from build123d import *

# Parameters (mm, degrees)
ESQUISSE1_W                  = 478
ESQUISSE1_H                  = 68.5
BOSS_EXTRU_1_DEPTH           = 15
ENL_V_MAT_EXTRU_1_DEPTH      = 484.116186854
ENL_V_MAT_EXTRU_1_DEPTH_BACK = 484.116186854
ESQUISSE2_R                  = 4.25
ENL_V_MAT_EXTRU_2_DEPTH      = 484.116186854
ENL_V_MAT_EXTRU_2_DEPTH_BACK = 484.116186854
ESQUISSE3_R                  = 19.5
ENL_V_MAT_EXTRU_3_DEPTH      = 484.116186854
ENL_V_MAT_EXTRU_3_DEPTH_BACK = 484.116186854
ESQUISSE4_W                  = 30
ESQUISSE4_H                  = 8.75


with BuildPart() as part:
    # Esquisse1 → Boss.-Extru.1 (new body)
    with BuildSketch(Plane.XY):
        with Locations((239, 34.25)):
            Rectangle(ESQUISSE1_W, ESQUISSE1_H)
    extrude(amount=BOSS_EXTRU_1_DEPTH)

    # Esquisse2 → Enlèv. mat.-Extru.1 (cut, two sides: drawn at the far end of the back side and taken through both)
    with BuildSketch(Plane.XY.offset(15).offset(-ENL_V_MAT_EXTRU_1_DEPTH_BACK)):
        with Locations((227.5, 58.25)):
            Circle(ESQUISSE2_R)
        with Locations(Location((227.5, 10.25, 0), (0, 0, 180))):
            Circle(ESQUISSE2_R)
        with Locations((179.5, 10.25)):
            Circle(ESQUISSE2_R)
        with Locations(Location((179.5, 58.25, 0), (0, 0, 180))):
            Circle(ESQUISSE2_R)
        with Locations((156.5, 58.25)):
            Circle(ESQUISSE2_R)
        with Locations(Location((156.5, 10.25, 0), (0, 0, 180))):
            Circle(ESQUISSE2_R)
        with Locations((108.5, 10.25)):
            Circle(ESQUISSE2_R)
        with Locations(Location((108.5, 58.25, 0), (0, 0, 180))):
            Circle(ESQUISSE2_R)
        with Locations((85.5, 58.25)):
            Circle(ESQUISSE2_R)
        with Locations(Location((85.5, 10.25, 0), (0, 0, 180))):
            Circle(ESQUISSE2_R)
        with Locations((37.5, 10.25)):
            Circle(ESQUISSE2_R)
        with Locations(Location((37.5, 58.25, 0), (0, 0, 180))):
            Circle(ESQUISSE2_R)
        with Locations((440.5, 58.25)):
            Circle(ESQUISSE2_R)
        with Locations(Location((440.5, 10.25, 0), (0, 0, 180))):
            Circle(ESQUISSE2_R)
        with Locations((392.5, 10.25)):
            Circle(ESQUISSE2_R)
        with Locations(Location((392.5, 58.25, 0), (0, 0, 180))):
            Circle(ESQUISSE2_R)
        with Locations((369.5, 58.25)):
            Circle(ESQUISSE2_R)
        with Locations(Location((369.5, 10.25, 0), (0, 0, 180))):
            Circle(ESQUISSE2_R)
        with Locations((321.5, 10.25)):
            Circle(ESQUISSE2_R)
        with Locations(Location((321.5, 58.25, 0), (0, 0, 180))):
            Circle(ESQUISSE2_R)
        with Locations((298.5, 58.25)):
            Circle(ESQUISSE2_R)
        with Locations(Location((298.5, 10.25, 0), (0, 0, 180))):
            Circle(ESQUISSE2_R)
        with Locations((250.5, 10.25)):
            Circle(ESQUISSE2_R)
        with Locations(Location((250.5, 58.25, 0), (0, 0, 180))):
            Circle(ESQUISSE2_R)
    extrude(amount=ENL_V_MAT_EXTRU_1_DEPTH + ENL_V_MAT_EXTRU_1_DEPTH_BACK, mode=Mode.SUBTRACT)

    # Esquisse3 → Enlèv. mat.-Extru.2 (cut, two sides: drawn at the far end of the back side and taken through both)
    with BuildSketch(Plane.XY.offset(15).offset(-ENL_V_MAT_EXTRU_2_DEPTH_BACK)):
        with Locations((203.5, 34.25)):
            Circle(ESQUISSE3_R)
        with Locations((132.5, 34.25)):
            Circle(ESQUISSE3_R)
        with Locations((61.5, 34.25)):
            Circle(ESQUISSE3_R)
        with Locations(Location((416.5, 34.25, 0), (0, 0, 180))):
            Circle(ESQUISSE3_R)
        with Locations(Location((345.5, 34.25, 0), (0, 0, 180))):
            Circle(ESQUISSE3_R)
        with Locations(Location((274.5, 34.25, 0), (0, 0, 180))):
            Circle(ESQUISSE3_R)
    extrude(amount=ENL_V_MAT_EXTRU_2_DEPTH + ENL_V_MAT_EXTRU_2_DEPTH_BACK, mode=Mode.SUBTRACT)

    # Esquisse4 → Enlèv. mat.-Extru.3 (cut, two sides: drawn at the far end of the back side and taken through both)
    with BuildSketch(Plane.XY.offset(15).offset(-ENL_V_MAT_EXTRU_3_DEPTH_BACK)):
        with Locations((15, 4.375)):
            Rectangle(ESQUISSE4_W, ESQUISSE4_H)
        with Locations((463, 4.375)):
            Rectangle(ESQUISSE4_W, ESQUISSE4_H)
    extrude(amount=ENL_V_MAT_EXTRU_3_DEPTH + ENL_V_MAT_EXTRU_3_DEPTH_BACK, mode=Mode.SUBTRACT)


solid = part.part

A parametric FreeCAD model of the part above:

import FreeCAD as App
import Part
import Sketcher

V = App.Vector
Q = App.Units.Quantity


def add_polygon(sketch, points):
    """Adds a closed chain of lines whose ends are joined by coincident constraints."""
    first, n = sketch.GeometryCount, len(points)
    for a, b in zip(points, points[1:] + points[:1]):
        sketch.addGeometry(Part.LineSegment(App.Vector(*a, 0), App.Vector(*b, 0)), False)
    for i in range(n):
        sketch.addConstraint(Sketcher.Constraint("Coincident", first + i, 2, first + (i + 1) % n, 1))

doc = App.newDocument("Part")
params = doc.addObject("Spreadsheet::Sheet", "Params")
for row, (alias, value) in enumerate([
    ("sketch1_width", "478 mm"),
    ("sketch1_height", "68.5 mm"),
    ("pad1_length", "15 mm"),
    ("sketch2_diameter", "8.5 mm"),
    ("sketch3_diameter", "39 mm"),
    ("sketch4_width", "30 mm"),
    ("sketch4_height", "8.75 mm"),
], start=1):
    params.set(f"A{row}", alias)
    params.set(f"B{row}", "=" + value)
    params.setAlias(f"B{row}", alias)

body = doc.addObject("PartDesign::Body", "Body")

# Sketch on XY plane
sketch1 = body.newObject("Sketcher::SketchObject", "Sketch")
sketch1.AttachmentSupport = (doc.getObject("XY_Plane"), [""])
sketch1.MapMode = "FlatFace"
add_polygon(sketch1, [(0, 68), (0, 0), (478, 0), (478, 68)])  # lines 0-3
sketch1.addConstraint(Sketcher.Constraint("Vertical", 0))
sketch1.addConstraint(Sketcher.Constraint("Horizontal", 1))
sketch1.addConstraint(Sketcher.Constraint("Vertical", 2))
sketch1.addConstraint(Sketcher.Constraint("Horizontal", 3))
sketch1.addConstraint(Sketcher.Constraint("Coincident", 0, 2, -1, 1))
sketch1.addConstraint(Sketcher.Constraint("DistanceX", 1, 1, 1, 2, Q("478 mm")))
sketch1.addConstraint(Sketcher.Constraint("DistanceY", 0, 2, 0, 1, Q("68.5 mm")))
sketch1.setExpression("Constraints[9]", "Params.sketch1_width")
sketch1.setExpression("Constraints[10]", "Params.sketch1_height")
pad1 = body.newObject("PartDesign::Pad", "Pad")
pad1.Profile = sketch1
pad1.setExpression("Length", "Params.pad1_length")

# Sketch on XY plane
sketch2 = body.newObject("Sketcher::SketchObject", "Sketch001")
sketch2.AttachmentSupport = (doc.getObject("XY_Plane"), [""])
sketch2.MapMode = "FlatFace"
sketch2.AttachmentOffset = App.Placement(V(0, 0, 15), App.Rotation())
sketch2.addGeometry(Part.Circle(V(227.5, 58.2, 0), V(0, 0, 1), 4.2), False)
sketch2.addGeometry(Part.Circle(V(227.5, 10.2, 0), V(0, 0, 1), 4.2), False)
sketch2.addGeometry(Part.Circle(V(179.5, 10.2, 0), V(0, 0, 1), 4.2), False)
sketch2.addGeometry(Part.Circle(V(179.5, 58.2, 0), V(0, 0, 1), 4.2), False)
sketch2.addGeometry(Part.Circle(V(156.5, 58.2, 0), V(0, 0, 1), 4.2), False)
sketch2.addGeometry(Part.Circle(V(156.5, 10.2, 0), V(0, 0, 1), 4.2), False)
sketch2.addGeometry(Part.Circle(V(108.5, 10.2, 0), V(0, 0, 1), 4.2), False)
sketch2.addGeometry(Part.Circle(V(108.5, 58.2, 0), V(0, 0, 1), 4.2), False)
sketch2.addGeometry(Part.Circle(V(85.5, 58.2, 0), V(0, 0, 1), 4.2), False)
sketch2.addGeometry(Part.Circle(V(85.5, 10.2, 0), V(0, 0, 1), 4.2), False)
sketch2.addGeometry(Part.Circle(V(37.5, 10.2, 0), V(0, 0, 1), 4.2), False)
sketch2.addGeometry(Part.Circle(V(37.5, 58.2, 0), V(0, 0, 1), 4.2), False)
sketch2.addGeometry(Part.Circle(V(440.5, 58.2, 0), V(0, 0, 1), 4.2), False)
sketch2.addGeometry(Part.Circle(V(440.5, 10.2, 0), V(0, 0, 1), 4.2), False)
sketch2.addGeometry(Part.Circle(V(392.5, 10.2, 0), V(0, 0, 1), 4.2), False)
sketch2.addGeometry(Part.Circle(V(392.5, 58.2, 0), V(0, 0, 1), 4.2), False)
sketch2.addGeometry(Part.Circle(V(369.5, 58.2, 0), V(0, 0, 1), 4.2), False)
sketch2.addGeometry(Part.Circle(V(369.5, 10.2, 0), V(0, 0, 1), 4.2), False)
sketch2.addGeometry(Part.Circle(V(321.5, 10.2, 0), V(0, 0, 1), 4.2), False)
sketch2.addGeometry(Part.Circle(V(321.5, 58.2, 0), V(0, 0, 1), 4.2), False)
sketch2.addGeometry(Part.Circle(V(298.5, 58.2, 0), V(0, 0, 1), 4.2), False)
sketch2.addGeometry(Part.Circle(V(298.5, 10.2, 0), V(0, 0, 1), 4.2), False)
sketch2.addGeometry(Part.Circle(V(250.5, 10.2, 0), V(0, 0, 1), 4.2), False)
sketch2.addGeometry(Part.Circle(V(250.5, 58.2, 0), V(0, 0, 1), 4.2), False)
sketch2.addConstraint(Sketcher.Constraint("Equal", 0, 1))
sketch2.addConstraint(Sketcher.Constraint("Equal", 1, 2))
sketch2.addConstraint(Sketcher.Constraint("Equal", 2, 3))
sketch2.addConstraint(Sketcher.Constraint("Equal", 3, 4))
sketch2.addConstraint(Sketcher.Constraint("Equal", 4, 5))
sketch2.addConstraint(Sketcher.Constraint("Equal", 5, 6))
sketch2.addConstraint(Sketcher.Constraint("Equal", 6, 7))
sketch2.addConstraint(Sketcher.Constraint("Equal", 7, 8))
sketch2.addConstraint(Sketcher.Constraint("Equal", 8, 9))
sketch2.addConstraint(Sketcher.Constraint("Equal", 9, 10))
sketch2.addConstraint(Sketcher.Constraint("Equal", 10, 11))
sketch2.addConstraint(Sketcher.Constraint("Equal", 11, 12))
sketch2.addConstraint(Sketcher.Constraint("Equal", 12, 13))
sketch2.addConstraint(Sketcher.Constraint("Equal", 13, 14))
sketch2.addConstraint(Sketcher.Constraint("Equal", 14, 15))
sketch2.addConstraint(Sketcher.Constraint("Equal", 15, 16))
sketch2.addConstraint(Sketcher.Constraint("Equal", 16, 17))
sketch2.addConstraint(Sketcher.Constraint("Equal", 17, 18))
sketch2.addConstraint(Sketcher.Constraint("Equal", 18, 19))
sketch2.addConstraint(Sketcher.Constraint("Equal", 19, 20))
sketch2.addConstraint(Sketcher.Constraint("Equal", 20, 21))
sketch2.addConstraint(Sketcher.Constraint("Equal", 21, 22))
sketch2.addConstraint(Sketcher.Constraint("Equal", 22, 23))
sketch2.addConstraint(Sketcher.Constraint("Horizontal", 1, 3, 2, 3))
sketch2.addConstraint(Sketcher.Constraint("Horizontal", 0, 3, 3, 3))
sketch2.addConstraint(Sketcher.Constraint("Horizontal", 3, 3, 4, 3))
sketch2.addConstraint(Sketcher.Constraint("Horizontal", 2, 3, 5, 3))
sketch2.addConstraint(Sketcher.Constraint("Horizontal", 5, 3, 6, 3))
sketch2.addConstraint(Sketcher.Constraint("Horizontal", 4, 3, 7, 3))
sketch2.addConstraint(Sketcher.Constraint("Horizontal", 7, 3, 8, 3))
sketch2.addConstraint(Sketcher.Constraint("Horizontal", 6, 3, 9, 3))
sketch2.addConstraint(Sketcher.Constraint("Horizontal", 9, 3, 10, 3))
sketch2.addConstraint(Sketcher.Constraint("Horizontal", 8, 3, 11, 3))
sketch2.addConstraint(Sketcher.Constraint("Horizontal", 11, 3, 12, 3))
sketch2.addConstraint(Sketcher.Constraint("Horizontal", 10, 3, 13, 3))
sketch2.addConstraint(Sketcher.Constraint("Horizontal", 13, 3, 14, 3))
sketch2.addConstraint(Sketcher.Constraint("Horizontal", 12, 3, 15, 3))
sketch2.addConstraint(Sketcher.Constraint("Horizontal", 15, 3, 16, 3))
sketch2.addConstraint(Sketcher.Constraint("Horizontal", 14, 3, 17, 3))
sketch2.addConstraint(Sketcher.Constraint("Horizontal", 17, 3, 18, 3))
sketch2.addConstraint(Sketcher.Constraint("Horizontal", 16, 3, 19, 3))
sketch2.addConstraint(Sketcher.Constraint("Horizontal", 19, 3, 20, 3))
sketch2.addConstraint(Sketcher.Constraint("Horizontal", 18, 3, 21, 3))
sketch2.addConstraint(Sketcher.Constraint("Horizontal", 21, 3, 22, 3))
sketch2.addConstraint(Sketcher.Constraint("Horizontal", 20, 3, 23, 3))
sketch2.addConstraint(Sketcher.Constraint("Vertical", 0, 3, 1, 3))
sketch2.addConstraint(Sketcher.Constraint("Vertical", 2, 3, 3, 3))
sketch2.addConstraint(Sketcher.Constraint("Vertical", 4, 3, 5, 3))
sketch2.addConstraint(Sketcher.Constraint("Vertical", 6, 3, 7, 3))
sketch2.addConstraint(Sketcher.Constraint("Vertical", 8, 3, 9, 3))
sketch2.addConstraint(Sketcher.Constraint("Vertical", 10, 3, 11, 3))
sketch2.addConstraint(Sketcher.Constraint("Vertical", 12, 3, 13, 3))
sketch2.addConstraint(Sketcher.Constraint("Vertical", 14, 3, 15, 3))
sketch2.addConstraint(Sketcher.Constraint("Vertical", 16, 3, 17, 3))
sketch2.addConstraint(Sketcher.Constraint("Vertical", 18, 3, 19, 3))
sketch2.addConstraint(Sketcher.Constraint("Vertical", 20, 3, 21, 3))
sketch2.addConstraint(Sketcher.Constraint("Vertical", 22, 3, 23, 3))
sketch2.addConstraint(Sketcher.Constraint("Diameter", 0, Q("8.5 mm")))
sketch2.addConstraint(Sketcher.Constraint("DistanceY", 1, 3, 0, 3, Q("48 mm")))
sketch2.addConstraint(Sketcher.Constraint("DistanceX", 2, 3, 1, 3, Q("48 mm")))
sketch2.addConstraint(Sketcher.Constraint("DistanceX", 4, 3, 3, 3, Q("23 mm")))
sketch2.addConstraint(Sketcher.Constraint("DistanceX", 6, 3, 5, 3, Q("48 mm")))
sketch2.addConstraint(Sketcher.Constraint("DistanceX", 8, 3, 7, 3, Q("23 mm")))
sketch2.addConstraint(Sketcher.Constraint("DistanceX", 10, 3, 9, 3, Q("48 mm")))
sketch2.addConstraint(Sketcher.Constraint("DistanceX", 0, 3, 12, 3, Q("213 mm")))
sketch2.addConstraint(Sketcher.Constraint("DistanceX", 14, 3, 13, 3, Q("48 mm")))
sketch2.addConstraint(Sketcher.Constraint("DistanceX", 16, 3, 15, 3, Q("23 mm")))
sketch2.addConstraint(Sketcher.Constraint("DistanceX", 18, 3, 17, 3, Q("48 mm")))
sketch2.addConstraint(Sketcher.Constraint("DistanceX", 20, 3, 19, 3, Q("23 mm")))
sketch2.addConstraint(Sketcher.Constraint("DistanceX", 1, 3, 22, 3, Q("23 mm")))
sketch2.addConstraint(Sketcher.Constraint("DistanceX", -1, 1, 0, 3, Q("227.5 mm")))
sketch2.addConstraint(Sketcher.Constraint("DistanceY", -1, 1, 0, 3, Q("58.25 mm")))
sketch2.setExpression("Constraints[57]", "Params.sketch2_diameter")
pocket1 = body.newObject("PartDesign::Pocket", "Pocket")
pocket1.Profile = sketch2
pocket1.Type = "ThroughAll"
pocket1.Midplane = True

# Sketch on XY plane
sketch3 = body.newObject("Sketcher::SketchObject", "Sketch002")
sketch3.AttachmentSupport = (doc.getObject("XY_Plane"), [""])
sketch3.MapMode = "FlatFace"
sketch3.AttachmentOffset = App.Placement(V(0, 0, 15), App.Rotation())
sketch3.addGeometry(Part.Circle(V(204, 34, 0), V(0, 0, 1), 20), False)
sketch3.addGeometry(Part.Circle(V(132, 34, 0), V(0, 0, 1), 20), False)
sketch3.addGeometry(Part.Circle(V(62, 34, 0), V(0, 0, 1), 20), False)
sketch3.addGeometry(Part.Circle(V(416, 34, 0), V(0, 0, 1), 20), False)
sketch3.addGeometry(Part.Circle(V(346, 34, 0), V(0, 0, 1), 20), False)
sketch3.addGeometry(Part.Circle(V(274, 34, 0), V(0, 0, 1), 20), False)
sketch3.addConstraint(Sketcher.Constraint("Equal", 0, 1))
sketch3.addConstraint(Sketcher.Constraint("Equal", 1, 2))
sketch3.addConstraint(Sketcher.Constraint("Equal", 2, 3))
sketch3.addConstraint(Sketcher.Constraint("Equal", 3, 4))
sketch3.addConstraint(Sketcher.Constraint("Equal", 4, 5))
sketch3.addConstraint(Sketcher.Constraint("Horizontal", 0, 3, 1, 3))
sketch3.addConstraint(Sketcher.Constraint("Horizontal", 1, 3, 2, 3))
sketch3.addConstraint(Sketcher.Constraint("Horizontal", 2, 3, 3, 3))
sketch3.addConstraint(Sketcher.Constraint("Horizontal", 3, 3, 4, 3))
sketch3.addConstraint(Sketcher.Constraint("Horizontal", 4, 3, 5, 3))
sketch3.addConstraint(Sketcher.Constraint("Diameter", 0, Q("39 mm")))
sketch3.addConstraint(Sketcher.Constraint("DistanceX", 1, 3, 0, 3, Q("71 mm")))
sketch3.addConstraint(Sketcher.Constraint("DistanceX", 2, 3, 1, 3, Q("71 mm")))
sketch3.addConstraint(Sketcher.Constraint("DistanceX", 0, 3, 3, 3, Q("213 mm")))
sketch3.addConstraint(Sketcher.Constraint("DistanceX", 4, 3, 3, 3, Q("71 mm")))
sketch3.addConstraint(Sketcher.Constraint("DistanceX", 0, 3, 5, 3, Q("71 mm")))
sketch3.addConstraint(Sketcher.Constraint("DistanceX", -1, 1, 0, 3, Q("203.5 mm")))
sketch3.addConstraint(Sketcher.Constraint("DistanceY", -1, 1, 0, 3, Q("34.25 mm")))
sketch3.setExpression("Constraints[10]", "Params.sketch3_diameter")
pocket2 = body.newObject("PartDesign::Pocket", "Pocket001")
pocket2.Profile = sketch3
pocket2.Type = "ThroughAll"
pocket2.Midplane = True

# Sketch on XY plane
sketch4 = body.newObject("Sketcher::SketchObject", "Sketch003")
sketch4.AttachmentSupport = (doc.getObject("XY_Plane"), [""])
sketch4.MapMode = "FlatFace"
sketch4.AttachmentOffset = App.Placement(V(0, 0, 15), App.Rotation())
add_polygon(sketch4, [(0, 9), (0, 0), (30, 0), (30, 9)])  # lines 0-3
add_polygon(sketch4, [(448, 9), (448, 0), (478, 0), (478, 9)])  # lines 4-7
sketch4.addConstraint(Sketcher.Constraint("Vertical", 0))
sketch4.addConstraint(Sketcher.Constraint("Horizontal", 1))
sketch4.addConstraint(Sketcher.Constraint("Vertical", 2))
sketch4.addConstraint(Sketcher.Constraint("Horizontal", 3))
sketch4.addConstraint(Sketcher.Constraint("Vertical", 4))
sketch4.addConstraint(Sketcher.Constraint("Horizontal", 5))
sketch4.addConstraint(Sketcher.Constraint("Vertical", 6))
sketch4.addConstraint(Sketcher.Constraint("Horizontal", 7))
sketch4.addConstraint(Sketcher.Constraint("Coincident", 0, 2, -1, 1))
sketch4.addConstraint(Sketcher.Constraint("PointOnObject", 4, 2, -1))
sketch4.addConstraint(Sketcher.Constraint("Horizontal", 3, 2, 6, 2))
sketch4.addConstraint(Sketcher.Constraint("Equal", 3, 5))
sketch4.addConstraint(Sketcher.Constraint("DistanceX", 1, 1, 1, 2, Q("30 mm")))
sketch4.addConstraint(Sketcher.Constraint("DistanceX", -1, 1, 4, 2, Q("448 mm")))
sketch4.addConstraint(Sketcher.Constraint("DistanceY", 0, 2, 0, 1, Q("8.75 mm")))
sketch4.setExpression("Constraints[20]", "Params.sketch4_width")
sketch4.setExpression("Constraints[22]", "Params.sketch4_height")
pocket3 = body.newObject("PartDesign::Pocket", "Pocket002")
pocket3.Profile = sketch4
pocket3.Type = "ThroughAll"
pocket3.Midplane = True

doc.recompute()
